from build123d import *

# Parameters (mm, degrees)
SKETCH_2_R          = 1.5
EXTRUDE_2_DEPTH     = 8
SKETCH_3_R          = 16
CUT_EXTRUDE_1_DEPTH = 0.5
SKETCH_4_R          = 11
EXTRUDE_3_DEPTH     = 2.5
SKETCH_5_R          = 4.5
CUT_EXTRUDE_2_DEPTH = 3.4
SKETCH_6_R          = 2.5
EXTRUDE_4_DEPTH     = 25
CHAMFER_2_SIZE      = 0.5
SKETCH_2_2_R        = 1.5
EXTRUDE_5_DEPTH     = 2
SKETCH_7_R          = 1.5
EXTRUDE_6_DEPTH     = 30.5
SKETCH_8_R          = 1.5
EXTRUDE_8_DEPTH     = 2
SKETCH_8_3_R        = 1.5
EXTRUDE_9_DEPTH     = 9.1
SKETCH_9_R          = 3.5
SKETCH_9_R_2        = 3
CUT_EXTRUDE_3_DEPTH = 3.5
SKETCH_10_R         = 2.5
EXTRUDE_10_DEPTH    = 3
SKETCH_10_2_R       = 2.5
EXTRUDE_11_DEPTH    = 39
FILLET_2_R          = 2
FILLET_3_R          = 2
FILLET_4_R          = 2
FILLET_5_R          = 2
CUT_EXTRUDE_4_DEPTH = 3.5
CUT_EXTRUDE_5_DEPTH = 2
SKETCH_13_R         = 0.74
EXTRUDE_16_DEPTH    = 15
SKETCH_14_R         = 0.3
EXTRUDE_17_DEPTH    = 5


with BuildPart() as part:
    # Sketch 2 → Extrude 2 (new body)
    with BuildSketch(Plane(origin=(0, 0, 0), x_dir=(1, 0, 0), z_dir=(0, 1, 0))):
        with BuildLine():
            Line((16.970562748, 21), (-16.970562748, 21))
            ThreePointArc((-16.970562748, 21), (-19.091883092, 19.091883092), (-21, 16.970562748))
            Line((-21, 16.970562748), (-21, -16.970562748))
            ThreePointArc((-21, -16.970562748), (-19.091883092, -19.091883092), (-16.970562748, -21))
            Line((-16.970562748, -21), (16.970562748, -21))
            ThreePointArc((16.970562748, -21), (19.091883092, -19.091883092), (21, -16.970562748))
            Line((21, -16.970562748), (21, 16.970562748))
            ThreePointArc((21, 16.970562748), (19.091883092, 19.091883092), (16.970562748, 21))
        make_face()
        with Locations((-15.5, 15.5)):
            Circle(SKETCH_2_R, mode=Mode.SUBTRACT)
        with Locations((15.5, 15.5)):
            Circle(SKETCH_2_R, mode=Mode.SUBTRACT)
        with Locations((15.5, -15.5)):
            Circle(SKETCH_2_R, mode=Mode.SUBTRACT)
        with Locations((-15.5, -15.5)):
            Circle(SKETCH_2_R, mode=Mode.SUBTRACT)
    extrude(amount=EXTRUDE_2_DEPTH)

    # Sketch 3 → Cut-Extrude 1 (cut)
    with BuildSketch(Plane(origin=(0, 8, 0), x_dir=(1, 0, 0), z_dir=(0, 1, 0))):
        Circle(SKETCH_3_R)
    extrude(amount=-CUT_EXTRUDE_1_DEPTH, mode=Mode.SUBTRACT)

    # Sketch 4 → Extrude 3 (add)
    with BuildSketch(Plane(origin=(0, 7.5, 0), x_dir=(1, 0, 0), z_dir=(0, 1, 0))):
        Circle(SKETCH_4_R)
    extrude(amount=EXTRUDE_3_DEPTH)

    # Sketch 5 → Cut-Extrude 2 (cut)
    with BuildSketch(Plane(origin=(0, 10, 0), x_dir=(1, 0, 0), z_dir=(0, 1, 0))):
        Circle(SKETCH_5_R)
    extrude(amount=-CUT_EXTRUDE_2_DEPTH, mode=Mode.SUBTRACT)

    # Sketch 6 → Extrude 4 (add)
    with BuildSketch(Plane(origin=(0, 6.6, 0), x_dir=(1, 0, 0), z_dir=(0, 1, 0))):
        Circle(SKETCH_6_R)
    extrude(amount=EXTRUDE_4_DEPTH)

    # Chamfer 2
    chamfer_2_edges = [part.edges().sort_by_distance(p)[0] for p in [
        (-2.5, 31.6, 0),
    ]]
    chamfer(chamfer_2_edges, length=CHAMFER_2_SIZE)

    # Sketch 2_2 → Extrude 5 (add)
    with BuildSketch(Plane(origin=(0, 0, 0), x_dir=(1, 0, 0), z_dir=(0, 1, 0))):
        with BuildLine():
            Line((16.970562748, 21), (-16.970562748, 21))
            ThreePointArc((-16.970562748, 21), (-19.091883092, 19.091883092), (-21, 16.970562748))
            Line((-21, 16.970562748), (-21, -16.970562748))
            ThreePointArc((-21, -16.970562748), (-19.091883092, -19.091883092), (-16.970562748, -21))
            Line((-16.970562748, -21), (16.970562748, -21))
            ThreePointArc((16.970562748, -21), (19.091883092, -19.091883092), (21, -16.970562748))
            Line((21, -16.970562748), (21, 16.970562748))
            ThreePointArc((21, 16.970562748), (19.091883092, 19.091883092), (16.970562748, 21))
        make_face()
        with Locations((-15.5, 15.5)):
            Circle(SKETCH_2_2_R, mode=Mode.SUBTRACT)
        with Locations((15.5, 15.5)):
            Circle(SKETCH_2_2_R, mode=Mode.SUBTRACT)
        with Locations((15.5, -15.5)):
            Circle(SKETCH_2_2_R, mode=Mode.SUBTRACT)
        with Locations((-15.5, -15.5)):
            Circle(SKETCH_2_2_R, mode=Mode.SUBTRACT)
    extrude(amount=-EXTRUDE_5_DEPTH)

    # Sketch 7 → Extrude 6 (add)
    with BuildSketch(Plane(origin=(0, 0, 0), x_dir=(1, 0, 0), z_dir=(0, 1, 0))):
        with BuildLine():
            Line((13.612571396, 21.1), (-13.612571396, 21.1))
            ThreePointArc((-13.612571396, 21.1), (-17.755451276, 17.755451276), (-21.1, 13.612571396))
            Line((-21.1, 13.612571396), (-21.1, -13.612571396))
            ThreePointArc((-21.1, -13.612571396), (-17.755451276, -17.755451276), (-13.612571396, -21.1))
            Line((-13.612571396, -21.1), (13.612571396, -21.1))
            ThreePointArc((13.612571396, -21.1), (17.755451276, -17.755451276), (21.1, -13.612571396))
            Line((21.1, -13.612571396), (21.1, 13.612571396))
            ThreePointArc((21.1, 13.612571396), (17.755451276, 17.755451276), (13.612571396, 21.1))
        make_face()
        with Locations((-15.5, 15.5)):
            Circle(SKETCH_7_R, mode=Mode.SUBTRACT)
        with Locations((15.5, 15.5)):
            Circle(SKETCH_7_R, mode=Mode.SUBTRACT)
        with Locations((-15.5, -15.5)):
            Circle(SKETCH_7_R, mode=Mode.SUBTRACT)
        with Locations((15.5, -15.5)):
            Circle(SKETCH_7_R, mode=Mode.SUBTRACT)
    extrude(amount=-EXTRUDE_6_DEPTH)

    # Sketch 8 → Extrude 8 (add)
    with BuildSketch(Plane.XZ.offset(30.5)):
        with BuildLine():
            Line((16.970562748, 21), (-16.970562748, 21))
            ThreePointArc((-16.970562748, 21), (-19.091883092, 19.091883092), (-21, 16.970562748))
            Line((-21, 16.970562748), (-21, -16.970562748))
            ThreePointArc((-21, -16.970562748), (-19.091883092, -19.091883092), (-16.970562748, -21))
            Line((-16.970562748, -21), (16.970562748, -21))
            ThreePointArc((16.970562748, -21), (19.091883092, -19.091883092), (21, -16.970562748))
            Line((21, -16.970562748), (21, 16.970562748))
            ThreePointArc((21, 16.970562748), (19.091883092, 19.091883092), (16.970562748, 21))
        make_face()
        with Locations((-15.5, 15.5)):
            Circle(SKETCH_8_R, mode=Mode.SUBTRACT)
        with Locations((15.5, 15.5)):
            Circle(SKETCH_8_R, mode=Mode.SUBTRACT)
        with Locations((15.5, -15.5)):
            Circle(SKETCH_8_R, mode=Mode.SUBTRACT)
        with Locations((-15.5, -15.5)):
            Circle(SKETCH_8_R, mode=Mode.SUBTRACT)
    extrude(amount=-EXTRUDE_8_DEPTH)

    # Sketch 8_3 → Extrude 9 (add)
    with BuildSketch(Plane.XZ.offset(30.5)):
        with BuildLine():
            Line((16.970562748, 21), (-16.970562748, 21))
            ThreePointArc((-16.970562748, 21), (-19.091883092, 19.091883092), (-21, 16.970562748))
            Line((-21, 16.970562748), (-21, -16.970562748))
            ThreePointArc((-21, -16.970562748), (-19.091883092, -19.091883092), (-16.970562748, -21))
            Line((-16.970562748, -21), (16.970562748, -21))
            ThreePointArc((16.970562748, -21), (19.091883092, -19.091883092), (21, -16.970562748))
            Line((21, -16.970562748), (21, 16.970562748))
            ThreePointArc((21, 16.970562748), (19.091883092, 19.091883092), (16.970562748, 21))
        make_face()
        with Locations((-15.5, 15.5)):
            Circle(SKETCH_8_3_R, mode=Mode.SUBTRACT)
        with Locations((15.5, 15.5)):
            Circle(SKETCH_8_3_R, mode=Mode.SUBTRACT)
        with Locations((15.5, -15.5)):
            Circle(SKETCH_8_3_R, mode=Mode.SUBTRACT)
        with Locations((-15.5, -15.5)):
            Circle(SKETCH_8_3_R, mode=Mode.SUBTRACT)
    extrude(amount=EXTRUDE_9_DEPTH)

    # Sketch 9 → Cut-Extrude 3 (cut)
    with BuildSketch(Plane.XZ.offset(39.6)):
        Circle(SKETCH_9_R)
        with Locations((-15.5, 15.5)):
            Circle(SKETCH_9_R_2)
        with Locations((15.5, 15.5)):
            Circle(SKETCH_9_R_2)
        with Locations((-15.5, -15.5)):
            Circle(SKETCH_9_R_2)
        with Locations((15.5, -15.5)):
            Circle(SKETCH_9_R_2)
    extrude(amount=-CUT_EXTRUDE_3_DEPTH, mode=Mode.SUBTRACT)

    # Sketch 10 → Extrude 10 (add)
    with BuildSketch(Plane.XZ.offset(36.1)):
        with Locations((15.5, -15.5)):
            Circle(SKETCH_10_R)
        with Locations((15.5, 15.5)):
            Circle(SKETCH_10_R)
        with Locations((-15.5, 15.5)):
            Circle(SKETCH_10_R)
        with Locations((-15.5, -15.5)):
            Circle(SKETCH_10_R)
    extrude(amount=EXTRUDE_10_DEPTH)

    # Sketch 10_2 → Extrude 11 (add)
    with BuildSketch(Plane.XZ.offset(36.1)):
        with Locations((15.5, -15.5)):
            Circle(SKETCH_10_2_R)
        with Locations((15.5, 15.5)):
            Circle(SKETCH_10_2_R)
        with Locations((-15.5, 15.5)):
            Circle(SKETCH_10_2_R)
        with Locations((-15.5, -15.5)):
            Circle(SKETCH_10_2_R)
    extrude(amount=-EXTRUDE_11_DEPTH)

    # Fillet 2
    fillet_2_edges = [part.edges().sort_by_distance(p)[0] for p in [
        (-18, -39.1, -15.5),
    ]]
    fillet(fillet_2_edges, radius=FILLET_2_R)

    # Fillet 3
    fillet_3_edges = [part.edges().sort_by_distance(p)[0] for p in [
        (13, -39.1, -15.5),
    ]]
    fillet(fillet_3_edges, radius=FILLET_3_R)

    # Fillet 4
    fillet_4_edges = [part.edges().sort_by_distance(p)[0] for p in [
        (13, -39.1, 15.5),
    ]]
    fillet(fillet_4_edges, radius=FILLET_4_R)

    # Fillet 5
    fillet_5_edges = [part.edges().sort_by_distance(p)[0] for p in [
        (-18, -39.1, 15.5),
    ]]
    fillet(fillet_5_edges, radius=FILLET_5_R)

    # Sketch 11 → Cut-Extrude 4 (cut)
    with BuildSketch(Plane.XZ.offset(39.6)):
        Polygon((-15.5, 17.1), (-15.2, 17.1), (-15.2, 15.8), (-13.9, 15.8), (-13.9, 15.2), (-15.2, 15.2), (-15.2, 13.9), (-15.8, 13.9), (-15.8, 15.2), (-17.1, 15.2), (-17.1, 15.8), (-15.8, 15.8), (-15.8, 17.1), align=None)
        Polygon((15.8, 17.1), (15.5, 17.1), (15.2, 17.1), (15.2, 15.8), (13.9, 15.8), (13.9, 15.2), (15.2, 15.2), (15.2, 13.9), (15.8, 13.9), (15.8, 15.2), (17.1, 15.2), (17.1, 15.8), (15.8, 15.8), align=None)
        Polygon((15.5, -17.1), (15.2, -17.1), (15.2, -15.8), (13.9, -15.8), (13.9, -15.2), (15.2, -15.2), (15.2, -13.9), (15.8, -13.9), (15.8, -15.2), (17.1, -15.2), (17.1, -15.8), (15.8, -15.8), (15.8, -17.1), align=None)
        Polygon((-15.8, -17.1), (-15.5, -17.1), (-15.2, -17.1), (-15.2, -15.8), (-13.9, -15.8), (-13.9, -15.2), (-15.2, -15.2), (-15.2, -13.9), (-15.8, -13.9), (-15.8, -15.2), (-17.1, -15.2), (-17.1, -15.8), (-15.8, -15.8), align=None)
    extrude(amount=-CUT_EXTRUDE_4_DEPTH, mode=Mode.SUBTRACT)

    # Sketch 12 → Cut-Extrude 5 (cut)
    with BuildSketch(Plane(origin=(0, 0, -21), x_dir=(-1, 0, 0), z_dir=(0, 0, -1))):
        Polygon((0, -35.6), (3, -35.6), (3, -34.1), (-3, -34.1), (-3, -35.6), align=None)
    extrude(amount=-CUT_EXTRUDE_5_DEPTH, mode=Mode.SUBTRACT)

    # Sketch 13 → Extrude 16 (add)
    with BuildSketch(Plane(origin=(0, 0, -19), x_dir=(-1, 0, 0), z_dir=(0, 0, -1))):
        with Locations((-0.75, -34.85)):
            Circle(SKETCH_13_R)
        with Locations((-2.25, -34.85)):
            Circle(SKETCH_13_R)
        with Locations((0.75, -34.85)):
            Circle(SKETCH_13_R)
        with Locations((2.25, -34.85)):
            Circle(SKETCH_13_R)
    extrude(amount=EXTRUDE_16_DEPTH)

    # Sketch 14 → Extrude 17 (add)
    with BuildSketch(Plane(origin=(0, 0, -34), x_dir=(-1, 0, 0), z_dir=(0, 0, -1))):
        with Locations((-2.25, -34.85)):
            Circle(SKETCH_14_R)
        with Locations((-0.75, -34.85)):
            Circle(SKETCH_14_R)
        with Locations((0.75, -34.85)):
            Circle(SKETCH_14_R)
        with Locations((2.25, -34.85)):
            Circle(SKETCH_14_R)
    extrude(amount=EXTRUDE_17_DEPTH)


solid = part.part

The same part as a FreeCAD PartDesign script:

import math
import FreeCAD as App
import Part
import Sketcher
from FreeCAD import Vector


def edges_at(feature, points):
    """Names of the edges that pass closest to the given points."""
    edges = feature.Shape.Edges
    near = lambda p: min(range(len(edges)), key=lambda i: edges[i].distToShape(Part.Vertex(*p))[0])
    return sorted({f"Edge{near(p) + 1}" for p in points})


def add_polygon(sketch, points):
    """Adds a closed chain of lines whose ends are joined by coincident constraints."""
    first, n = sketch.GeometryCount, len(points)
    for a, b in zip(points, points[1:] + points[:1]):
        sketch.addGeometry(Part.LineSegment(App.Vector(*a, 0), App.Vector(*b, 0)), False)
    for i in range(n):
        sketch.addConstraint(Sketcher.Constraint("Coincident", first + i, 2, first + (i + 1) % n, 1))

doc = App.newDocument("Part")
body = doc.addObject("PartDesign::Body", "Body")

# Sketch on XZ plane
sketch1 = body.newObject("Sketcher::SketchObject", "Sketch")
sketch1.AttachmentSupport = (doc.getObject("XZ_Plane"), [""])
sketch1.MapMode = "FlatFace"
sketch1.addGeometry([
    Part.LineSegment(Vector(17, -21, 0), Vector(-17, -21, 0)),  # 0
    Part.ArcOfCircle(Part.Circle(Vector(0, 0, 0), Vector(0, 0, 1), 27), math.radians(-141.06), math.radians(-128.94)),  # 1
    Part.LineSegment(Vector(-21, -17, 0), Vector(-21, 17, 0)),  # 2
    Part.ArcOfCircle(Part.Circle(Vector(0, 0, 0), Vector(0, 0, 1), 27), math.radians(128.94), math.radians(141.06)),  # 3
    Part.LineSegment(Vector(-17, 21, 0), Vector(17, 21, 0)),  # 4
    Part.ArcOfCircle(Part.Circle(Vector(0, 0, 0), Vector(0, 0, 1), 27), math.radians(38.94), math.radians(51.06)),  # 5
    Part.LineSegment(Vector(21, 17, 0), Vector(21, -17, 0)),  # 6
    Part.ArcOfCircle(Part.Circle(Vector(0, 0, 0), Vector(0, 0, 1), 27), math.radians(-51.06), math.radians(-38.94)),  # 7
    Part.Circle(Vector(-15.5, 15.5, 0), Vector(0, 0, 1), 1.5),  # 8
    Part.Circle(Vector(15.5, 15.5, 0), Vector(0, 0, 1), 1.5),  # 9
    Part.Circle(Vector(-15.5, -15.5, 0), Vector(0, 0, 1), 1.5),  # 10
    Part.Circle(Vector(15.5, -15.5, 0), Vector(0, 0, 1), 1.5),  # 11
], False)
sketch1.addConstraint([
    Sketcher.Constraint("Coincident", 0, 2, 1, 2),
    Sketcher.Constraint("Coincident", 1, 1, 2, 1),
    Sketcher.Constraint("Coincident", 2, 2, 3, 2),
    Sketcher.Constraint("Coincident", 3, 1, 4, 1),
    Sketcher.Constraint("Coincident", 4, 2, 5, 2),
    Sketcher.Constraint("Coincident", 5, 1, 6, 1),
    Sketcher.Constraint("Coincident", 6, 2, 7, 2),
    Sketcher.Constraint("Coincident", 7, 1, 0, 1),
    Sketcher.Constraint("Horizontal", 0),
    Sketcher.Constraint("Vertical", 2),
    Sketcher.Constraint("Horizontal", 4),
    Sketcher.Constraint("Vertical", 6),
    Sketcher.Constraint("Coincident", 1, 3, -1, 1),
    Sketcher.Constraint("Coincident", 3, 3, -1, 1),
    Sketcher.Constraint("Coincident", 5, 3, -1, 1),
    Sketcher.Constraint("Coincident", 7, 3, -1, 1),
    Sketcher.Constraint("Equal", 1, 3),
    Sketcher.Constraint("Equal", 3, 5),
    Sketcher.Constraint("Equal", 5, 7),
    Sketcher.Constraint("Equal", 8, 9),
    Sketcher.Constraint("Equal", 9, 10),
    Sketcher.Constraint("Equal", 10, 11),
    Sketcher.Constraint("Symmetric", 9, 3, 10, 3, -1, 1),
    Sketcher.Constraint("Symmetric", 8, 3, 11, 3, -1, 1),
    Sketcher.Constraint("Symmetric", 8, 3, 9, 3, -2),
    Sketcher.Constraint("Horizontal", 2, 2, 5, 1),
    Sketcher.Constraint("Vertical", 0, 2, 3, 1),
    Sketcher.Constraint("Equal", 4, 2),
    Sketcher.Constraint("Diameter", 8, 3.0),
    Sketcher.Constraint("Radius", 1, 27.0),
    Sketcher.Constraint("DistanceY", 0, 2, -1, 1, 21.0),
    Sketcher.Constraint("DistanceX", 8, 3, 9, 3, 31.0),
    Sketcher.Constraint("DistanceY", 10, 3, 8, 3, 31.0),
])
pad1 = body.newObject("PartDesign::Pad", "Pad")
pad1.Profile = sketch1
pad1.Length = 8
pad1.Reversed = True

# Sketch on XZ plane
sketch2 = body.newObject("Sketcher::SketchObject", "Sketch001")
sketch2.AttachmentSupport = (doc.getObject("XZ_Plane"), [""])
sketch2.MapMode = "FlatFace"
sketch2.AttachmentOffset = App.Placement(Vector(0, 0, -8), App.Rotation())
sketch2.addGeometry(Part.Circle(Vector(0, 0, 0), Vector(0, 0, 1), 16), False)
sketch2.addConstraint([
    Sketcher.Constraint("Coincident", 0, 3, -1, 1),
    Sketcher.Constraint("Diameter", 0, 32.0),
])
pocket1 = body.newObject("PartDesign::Pocket", "Pocket")
pocket1.Profile = sketch2
pocket1.Length = 0.5
pocket1.Reversed = True

# Sketch on XZ plane
sketch3 = body.newObject("Sketcher::SketchObject", "Sketch002")
sketch3.AttachmentSupport = (doc.getObject("XZ_Plane"), [""])
sketch3.MapMode = "FlatFace"
sketch3.AttachmentOffset = App.Placement(Vector(0, 0, -7.5), App.Rotation())
sketch3.addGeometry(Part.Circle(Vector(0, 0, 0), Vector(0, 0, 1), 11), False)
sketch3.addConstraint([
    Sketcher.Constraint("Coincident", 0, 3, -1, 1),
    Sketcher.Constraint("Diameter", 0, 22.0),
])
pad2 = body.newObject("PartDesign::Pad", "Pad001")
pad2.Profile = sketch3
pad2.Length = 2.5
pad2.Reversed = True

# Sketch on XZ plane
sketch4 = body.newObject("Sketcher::SketchObject", "Sketch003")
sketch4.AttachmentSupport = (doc.getObject("XZ_Plane"), [""])
sketch4.MapMode = "FlatFace"
sketch4.AttachmentOffset = App.Placement(Vector(0, 0, -10), App.Rotation())
sketch4.addGeometry(Part.Circle(Vector(0, 0, 0), Vector(0, 0, 1), 4.5), False)
sketch4.addConstraint([
    Sketcher.Constraint("Coincident", 0, 3, -1, 1),
    Sketcher.Constraint("Diameter", 0, 9.0),
])
pocket2 = body.newObject("PartDesign::Pocket", "Pocket001")
pocket2.Profile = sketch4
pocket2.Length = 3.4
pocket2.Reversed = True

# Sketch on XZ plane
sketch5 = body.newObject("Sketcher::SketchObject", "Sketch004")
sketch5.AttachmentSupport = (doc.getObject("XZ_Plane"), [""])
sketch5.MapMode = "FlatFace"
sketch5.AttachmentOffset = App.Placement(Vector(0, 0, -6.6), App.Rotation())
sketch5.addGeometry(Part.Circle(Vector(0, 0, 0), Vector(0, 0, 1), 2.5), False)
sketch5.addConstraint([
    Sketcher.Constraint("Coincident", 0, 3, -1, 1),
    Sketcher.Constraint("Diameter", 0, 5.0),
])
pad3 = body.newObject("PartDesign::Pad", "Pad002")
pad3.Profile = sketch5
pad3.Length = 25
pad3.Reversed = True
doc.recompute()

chamfer = body.newObject("PartDesign::Chamfer", "Chamfer")
chamfer.Base = (pad3, edges_at(pad3, [(-2.5, 31.6, 0)]))
chamfer.Size = 0.5

# Sketch on XZ plane
sketch6 = body.newObject("Sketcher::SketchObject", "Sketch005")
sketch6.AttachmentSupport = (doc.getObject("XZ_Plane"), [""])
sketch6.MapMode = "FlatFace"
sketch6.addGeometry([
    Part.LineSegment(Vector(17, -21, 0), Vector(-17, -21, 0)),  # 0
    Part.ArcOfCircle(Part.Circle(Vector(0, 0, 0), Vector(0, 0, 1), 27), math.radians(-141.06), math.radians(-128.94)),  # 1
    Part.LineSegment(Vector(-21, -17, 0), Vector(-21, 17, 0)),  # 2
    Part.ArcOfCircle(Part.Circle(Vector(0, 0, 0), Vector(0, 0, 1), 27), math.radians(128.94), math.radians(141.06)),  # 3
    Part.LineSegment(Vector(-17, 21, 0), Vector(17, 21, 0)),  # 4
    Part.ArcOfCircle(Part.Circle(Vector(0, 0, 0), Vector(0, 0, 1), 27), math.radians(38.94), math.radians(51.06)),  # 5
    Part.LineSegment(Vector(21, 17, 0), Vector(21, -17, 0)),  # 6
    Part.ArcOfCircle(Part.Circle(Vector(0, 0, 0), Vector(0, 0, 1), 27), math.radians(-51.06), math.radians(-38.94)),  # 7
    Part.Circle(Vector(-15.5, 15.5, 0), Vector(0, 0, 1), 1.5),  # 8
    Part.Circle(Vector(15.5, 15.5, 0), Vector(0, 0, 1), 1.5),  # 9
    Part.Circle(Vector(-15.5, -15.5, 0), Vector(0, 0, 1), 1.5),  # 10
    Part.Circle(Vector(15.5, -15.5, 0), Vector(0, 0, 1), 1.5),  # 11
], False)
sketch6.addConstraint([
    Sketcher.Constraint("Coincident", 0, 2, 1, 2),
    Sketcher.Constraint("Coincident", 1, 1, 2, 1),
    Sketcher.Constraint("Coincident", 2, 2, 3, 2),
    Sketcher.Constraint("Coincident", 3, 1, 4, 1),
    Sketcher.Constraint("Coincident", 4, 2, 5, 2),
    Sketcher.Constraint("Coincident", 5, 1, 6, 1),
    Sketcher.Constraint("Coincident", 6, 2, 7, 2),
    Sketcher.Constraint("Coincident", 7, 1, 0, 1),
    Sketcher.Constraint("Horizontal", 0),
    Sketcher.Constraint("Vertical", 2),
    Sketcher.Constraint("Horizontal", 4),
    Sketcher.Constraint("Vertical", 6),
    Sketcher.Constraint("Coincident", 1, 3, -1, 1),
    Sketcher.Constraint("Coincident", 3, 3, -1, 1),
    Sketcher.Constraint("Coincident", 5, 3, -1, 1),
    Sketcher.Constraint("Coincident", 7, 3, -1, 1),
    Sketcher.Constraint("Equal", 1, 3),
    Sketcher.Constraint("Equal", 3, 5),
    Sketcher.Constraint("Equal", 5, 7),
    Sketcher.Constraint("Equal", 8, 9),
    Sketcher.Constraint("Equal", 9, 10),
    Sketcher.Constraint("Equal", 10, 11),
    Sketcher.Constraint("Symmetric", 9, 3, 10, 3, -1, 1),
    Sketcher.Constraint("Symmetric", 8, 3, 11, 3, -1, 1),
    Sketcher.Constraint("Symmetric", 8, 3, 9, 3, -2),
    Sketcher.Constraint("Horizontal", 2, 2, 5, 1),
    Sketcher.Constraint("Vertical", 0, 2, 3, 1),
    Sketcher.Constraint("Equal", 4, 2),
    Sketcher.Constraint("Diameter", 8, 3.0),
    Sketcher.Constraint("Radius", 1, 27.0),
    Sketcher.Constraint("DistanceY", 0, 2, -1, 1, 21.0),
    Sketcher.Constraint("DistanceX", 8, 3, 9, 3, 31.0),
    Sketcher.Constraint("DistanceY", 10, 3, 8, 3, 31.0),
])
pad4 = body.newObject("PartDesign::Pad", "Pad003")
pad4.Profile = sketch6
pad4.Length = 2

# Sketch on XZ plane
sketch7 = body.newObject("Sketcher::SketchObject", "Sketch006")
sketch7.AttachmentSupport = (doc.getObject("XZ_Plane"), [""])
sketch7.MapMode = "FlatFace"
sketch7.addGeometry([
    Part.LineSegment(Vector(13.6, -21.1, 0), Vector(-13.6, -21.1, 0)),  # 0
    Part.ArcOfCircle(Part.Circle(Vector(0, 0, 0), Vector(0, 0, 1), 25.1), math.radians(-147), math.radians(-123)),  # 1
    Part.LineSegment(Vector(-21.1, -13.6, 0), Vector(-21.1, 13.6, 0)),  # 2
    Part.ArcOfCircle(Part.Circle(Vector(0, 0, 0), Vector(0, 0, 1), 25.1), math.radians(123), math.radians(147)),  # 3
    Part.LineSegment(Vector(-13.6, 21.1, 0), Vector(13.6, 21.1, 0)),  # 4
    Part.ArcOfCircle(Part.Circle(Vector(0, 0, 0), Vector(0, 0, 1), 25.1), math.radians(33), math.radians(57)),  # 5
    Part.LineSegment(Vector(21.1, 13.6, 0), Vector(21.1, -13.6, 0)),  # 6
    Part.ArcOfCircle(Part.Circle(Vector(0, 0, 0), Vector(0, 0, 1), 25.1), math.radians(-57), math.radians(-33)),  # 7
    Part.Circle(Vector(-15.5, 15.5, 0), Vector(0, 0, 1), 1.5),  # 8
    Part.Circle(Vector(15.5, 15.5, 0), Vector(0, 0, 1), 1.5),  # 9
    Part.Circle(Vector(-15.5, -15.5, 0), Vector(0, 0, 1), 1.5),  # 10
    Part.Circle(Vector(15.5, -15.5, 0), Vector(0, 0, 1), 1.5),  # 11
], False)
sketch7.addConstraint([
    Sketcher.Constraint("Coincident", 0, 2, 1, 2),
    Sketcher.Constraint("Coincident", 1, 1, 2, 1),
    Sketcher.Constraint("Coincident", 2, 2, 3, 2),
    Sketcher.Constraint("Coincident", 3, 1, 4, 1),
    Sketcher.Constraint("Coincident", 4, 2, 5, 2),
    Sketcher.Constraint("Coincident", 5, 1, 6, 1),
    Sketcher.Constraint("Coincident", 6, 2, 7, 2),
    Sketcher.Constraint("Coincident", 7, 1, 0, 1),
    Sketcher.Constraint("Horizontal", 0),
    Sketcher.Constraint("Vertical", 2),
    Sketcher.Constraint("Horizontal", 4),
    Sketcher.Constraint("Vertical", 6),
    Sketcher.Constraint("Coincident", 1, 3, -1, 1),
    Sketcher.Constraint("Coincident", 3, 3, -1, 1),
    Sketcher.Constraint("Coincident", 5, 3, -1, 1),
    Sketcher.Constraint("Coincident", 7, 3, -1, 1),
    Sketcher.Constraint("Equal", 1, 3),
    Sketcher.Constraint("Equal", 3, 5),
    Sketcher.Constraint("Equal", 5, 7),
    Sketcher.Constraint("Equal", 8, 9),
    Sketcher.Constraint("Equal", 9, 10),
    Sketcher.Constraint("Equal", 10, 11),
    Sketcher.Constraint("Symmetric", 9, 3, 10, 3, -1, 1),
    Sketcher.Constraint("Symmetric", 8, 3, 11, 3, -1, 1),
    Sketcher.Constraint("Symmetric", 8, 3, 9, 3, -2),
    Sketcher.Constraint("Horizontal", 2, 2, 5, 1),
    Sketcher.Constraint("Vertical", 0, 2, 3, 1),
    Sketcher.Constraint("Equal", 4, 2),
    Sketcher.Constraint("Diameter", 8, 3.0),
    Sketcher.Constraint("Radius", 1, 25.11),
    Sketcher.Constraint("DistanceX", 8, 3, 9, 3, 31.0),
    Sketcher.Constraint("DistanceY", 10, 3, 8, 3, 31.0),
    Sketcher.Constraint("DistanceY", 0, 2, -1, 1, 21.1),
])
pad5 = body.newObject("PartDesign::Pad", "Pad004")
pad5.Profile = sketch7
pad5.Length = 30.5

# Sketch on XZ plane
sketch8 = body.newObject("Sketcher::SketchObject", "Sketch007")
sketch8.AttachmentSupport = (doc.getObject("XZ_Plane"), [""])
sketch8.MapMode = "FlatFace"
sketch8.AttachmentOffset = App.Placement(Vector(0, 0, 30.5), App.Rotation())
sketch8.addGeometry([
    Part.LineSegment(Vector(17, 21, 0), Vector(-17, 21, 0)),  # 0
    Part.ArcOfCircle(Part.Circle(Vector(0, 0, 0), Vector(0, 0, 1), 27), math.radians(128.94), math.radians(141.06)),  # 1
    Part.LineSegment(Vector(-21, 17, 0), Vector(-21, -17, 0)),  # 2
    Part.ArcOfCircle(Part.Circle(Vector(0, 0, 0), Vector(0, 0, 1), 27), math.radians(-141.06), math.radians(-128.94)),  # 3
    Part.LineSegment(Vector(-17, -21, 0), Vector(17, -21, 0)),  # 4
    Part.ArcOfCircle(Part.Circle(Vector(0, 0, 0), Vector(0, 0, 1), 27), math.radians(-51.06), math.radians(-38.94)),  # 5
    Part.LineSegment(Vector(21, -17, 0), Vector(21, 17, 0)),  # 6
    Part.ArcOfCircle(Part.Circle(Vector(0, 0, 0), Vector(0, 0, 1), 27), math.radians(38.94), math.radians(51.06)),  # 7
    Part.Circle(Vector(-15.5, -15.5, 0), Vector(0, 0, 1), 1.5),  # 8
    Part.Circle(Vector(15.5, -15.5, 0), Vector(0, 0, 1), 1.5),  # 9
    Part.Circle(Vector(-15.5, 15.5, 0), Vector(0, 0, 1), 1.5),  # 10
    Part.Circle(Vector(15.5, 15.5, 0), Vector(0, 0, 1), 1.5),  # 11
], False)
sketch8.addConstraint([
    Sketcher.Constraint("Coincident", 0, 2, 1, 1),
    Sketcher.Constraint("Coincident", 1, 2, 2, 1),
    Sketcher.Constraint("Coincident", 2, 2, 3, 1),
    Sketcher.Constraint("Coincident", 3, 2, 4, 1),
    Sketcher.Constraint("Coincident", 4, 2, 5, 1),
    Sketcher.Constraint("Coincident", 5, 2, 6, 1),
    Sketcher.Constraint("Coincident", 6, 2, 7, 1),
    Sketcher.Constraint("Coincident", 7, 2, 0, 1),
    Sketcher.Constraint("Horizontal", 0),
    Sketcher.Constraint("Vertical", 2),
    Sketcher.Constraint("Horizontal", 4),
    Sketcher.Constraint("Vertical", 6),
    Sketcher.Constraint("Coincident", 1, 3, -1, 1),
    Sketcher.Constraint("Coincident", 3, 3, -1, 1),
    Sketcher.Constraint("Coincident", 5, 3, -1, 1),
    Sketcher.Constraint("Coincident", 7, 3, -1, 1),
    Sketcher.Constraint("Equal", 1, 3),
    Sketcher.Constraint("Equal", 3, 5),
    Sketcher.Constraint("Equal", 5, 7),
    Sketcher.Constraint("Equal", 8, 9),
    Sketcher.Constraint("Equal", 9, 10),
    Sketcher.Constraint("Equal", 10, 11),
    Sketcher.Constraint("Symmetric", 9, 3, 10, 3, -1, 1),
    Sketcher.Constraint("Symmetric", 8, 3, 11, 3, -1, 1),
    Sketcher.Constraint("Symmetric", 8, 3, 9, 3, -2),
    Sketcher.Constraint("Horizontal", 2, 2, 5, 2),
    Sketcher.Constraint("Vertical", 0, 2, 3, 2),
    Sketcher.Constraint("Equal", 4, 2),
    Sketcher.Constraint("Diameter", 8, 3.0),
    Sketcher.Constraint("Radius", 1, 27.0),
    Sketcher.Constraint("DistanceY", -1, 1, 0, 2, 21.0),
    Sketcher.Constraint("DistanceX", 8, 3, 9, 3, 31.0),
    Sketcher.Constraint("DistanceY", 8, 3, 10, 3, 31.0),
])
pad6 = body.newObject("PartDesign::Pad", "Pad005")
pad6.Profile = sketch8
pad6.Length = 2
pad6.Reversed = True

# Sketch on XZ plane
sketch9 = body.newObject("Sketcher::SketchObject", "Sketch008")
sketch9.AttachmentSupport = (doc.getObject("XZ_Plane"), [""])
sketch9.MapMode = "FlatFace"
sketch9.AttachmentOffset = App.Placement(Vector(0, 0, 30.5), App.Rotation())
sketch9.addGeometry([
    Part.LineSegment(Vector(17, 21, 0), Vector(-17, 21, 0)),  # 0
    Part.ArcOfCircle(Part.Circle(Vector(0, 0, 0), Vector(0, 0, 1), 27), math.radians(128.94), math.radians(141.06)),  # 1
    Part.LineSegment(Vector(-21, 17, 0), Vector(-21, -17, 0)),  # 2
    Part.ArcOfCircle(Part.Circle(Vector(0, 0, 0), Vector(0, 0, 1), 27), math.radians(-141.06), math.radians(-128.94)),  # 3
    Part.LineSegment(Vector(-17, -21, 0), Vector(17, -21, 0)),  # 4
    Part.ArcOfCircle(Part.Circle(Vector(0, 0, 0), Vector(0, 0, 1), 27), math.radians(-51.06), math.radians(-38.94)),  # 5
    Part.LineSegment(Vector(21, -17, 0), Vector(21, 17, 0)),  # 6
    Part.ArcOfCircle(Part.Circle(Vector(0, 0, 0), Vector(0, 0, 1), 27), math.radians(38.94), math.radians(51.06)),  # 7
    Part.Circle(Vector(-15.5, -15.5, 0), Vector(0, 0, 1), 1.5),  # 8
    Part.Circle(Vector(15.5, -15.5, 0), Vector(0, 0, 1), 1.5),  # 9
    Part.Circle(Vector(-15.5, 15.5, 0), Vector(0, 0, 1), 1.5),  # 10
    Part.Circle(Vector(15.5, 15.5, 0), Vector(0, 0, 1), 1.5),  # 11
], False)
sketch9.addConstraint([
    Sketcher.Constraint("Coincident", 0, 2, 1, 1),
    Sketcher.Constraint("Coincident", 1, 2, 2, 1),
    Sketcher.Constraint("Coincident", 2, 2, 3, 1),
    Sketcher.Constraint("Coincident", 3, 2, 4, 1),
    Sketcher.Constraint("Coincident", 4, 2, 5, 1),
    Sketcher.Constraint("Coincident", 5, 2, 6, 1),
    Sketcher.Constraint("Coincident", 6, 2, 7, 1),
    Sketcher.Constraint("Coincident", 7, 2, 0, 1),
    Sketcher.Constraint("Horizontal", 0),
    Sketcher.Constraint("Vertical", 2),
    Sketcher.Constraint("Horizontal", 4),
    Sketcher.Constraint("Vertical", 6),
    Sketcher.Constraint("Coincident", 1, 3, -1, 1),
    Sketcher.Constraint("Coincident", 3, 3, -1, 1),
    Sketcher.Constraint("Coincident", 5, 3, -1, 1),
    Sketcher.Constraint("Coincident", 7, 3, -1, 1),
    Sketcher.Constraint("Equal", 1, 3),
    Sketcher.Constraint("Equal", 3, 5),
    Sketcher.Constraint("Equal", 5, 7),
    Sketcher.Constraint("Equal", 8, 9),
    Sketcher.Constraint("Equal", 9, 10),
    Sketcher.Constraint("Equal", 10, 11),
    Sketcher.Constraint("Symmetric", 9, 3, 10, 3, -1, 1),
    Sketcher.Constraint("Symmetric", 8, 3, 11, 3, -1, 1),
    Sketcher.Constraint("Symmetric", 8, 3, 9, 3, -2),
    Sketcher.Constraint("Horizontal", 2, 2, 5, 2),
    Sketcher.Constraint("Vertical", 0, 2, 3, 2),
    Sketcher.Constraint("Equal", 4, 2),
    Sketcher.Constraint("Diameter", 8, 3.0),
    Sketcher.Constraint("Radius", 1, 27.0),
    Sketcher.Constraint("DistanceY", -1, 1, 0, 2, 21.0),
    Sketcher.Constraint("DistanceX", 8, 3, 9, 3, 31.0),
    Sketcher.Constraint("DistanceY", 8, 3, 10, 3, 31.0),
])
pad7 = body.newObject("PartDesign::Pad", "Pad006")
pad7.Profile = sketch9
pad7.Length = 9.1

# Sketch on XZ plane
sketch10 = body.newObject("Sketcher::SketchObject", "Sketch009")
sketch10.AttachmentSupport = (doc.getObject("XZ_Plane"), [""])
sketch10.MapMode = "FlatFace"
sketch10.AttachmentOffset = App.Placement(Vector(0, 0, 39.6), App.Rotation())
sketch10.addGeometry([
    Part.Circle(Vector(0, 0, 0), Vector(0, 0, 1), 3.5),  # 0
    Part.Circle(Vector(-15.5, 15.5, 0), Vector(0, 0, 1), 3),  # 1
    Part.Circle(Vector(15.5, 15.5, 0), Vector(0, 0, 1), 3),  # 2
    Part.Circle(Vector(-15.5, -15.5, 0), Vector(0, 0, 1), 3),  # 3
    Part.Circle(Vector(15.5, -15.5, 0), Vector(0, 0, 1), 3),  # 4
], False)
sketch10.addConstraint([
    Sketcher.Constraint("Coincident", 0, 3, -1, 1),
    Sketcher.Constraint("Equal", 1, 2),
    Sketcher.Constraint("Equal", 2, 3),
    Sketcher.Constraint("Equal", 3, 4),
    Sketcher.Constraint("Symmetric", 2, 3, 3, 3, -1, 1),
    Sketcher.Constraint("Symmetric", 1, 3, 4, 3, -1, 1),
    Sketcher.Constraint("Symmetric", 1, 3, 2, 3, -2),
    Sketcher.Constraint("Diameter", 0, 7.0),
    Sketcher.Constraint("Diameter", 1, 6.0),
    Sketcher.Constraint("DistanceX", 1, 3, 2, 3, 31.0),
    Sketcher.Constraint("DistanceY", 3, 3, 1, 3, 31.0),
])
pocket3 = body.newObject("PartDesign::Pocket", "Pocket002")
pocket3.Profile = sketch10
pocket3.Length = 3.5

# Sketch on XZ plane
sketch11 = body.newObject("Sketcher::SketchObject", "Sketch010")
sketch11.AttachmentSupport = (doc.getObject("XZ_Plane"), [""])
sketch11.MapMode = "FlatFace"
sketch11.AttachmentOffset = App.Placement(Vector(0, 0, 36.1), App.Rotation())
sketch11.addGeometry([
    Part.Circle(Vector(15.5, -15.5, 0), Vector(0, 0, 1), 2.5),
    Part.Circle(Vector(15.5, 15.5, 0), Vector(0, 0, 1), 2.5),
    Part.Circle(Vector(-15.5, 15.5, 0), Vector(0, 0, 1), 2.5),
    Part.Circle(Vector(-15.5, -15.5, 0), Vector(0, 0, 1), 2.5),
], False)
sketch11.addConstraint([
    Sketcher.Constraint("Equal", 0, 1),
    Sketcher.Constraint("Equal", 1, 2),
    Sketcher.Constraint("Equal", 2, 3),
    Sketcher.Constraint("Symmetric", 0, 3, 2, 3, -1, 1),
    Sketcher.Constraint("Symmetric", 1, 3, 3, 3, -1, 1),
    Sketcher.Constraint("Symmetric", 1, 3, 2, 3, -2),
    Sketcher.Constraint("Diameter", 0, 5.0),
    Sketcher.Constraint("DistanceY", 0, 3, 1, 3, 31.0),
    Sketcher.Constraint("DistanceX", 2, 3, 1, 3, 31.0),
])
pad8 = body.newObject("PartDesign::Pad", "Pad007")
pad8.Profile = sketch11
pad8.Length = 3

# Sketch on XZ plane
sketch12 = body.newObject("Sketcher::SketchObject", "Sketch011")
sketch12.AttachmentSupport = (doc.getObject("XZ_Plane"), [""])
sketch12.MapMode = "FlatFace"
sketch12.AttachmentOffset = App.Placement(Vector(0, 0, 36.1), App.Rotation())
sketch12.addGeometry([
    Part.Circle(Vector(15.5, -15.5, 0), Vector(0, 0, 1), 2.5),
    Part.Circle(Vector(15.5, 15.5, 0), Vector(0, 0, 1), 2.5),
    Part.Circle(Vector(-15.5, 15.5, 0), Vector(0, 0, 1), 2.5),
    Part.Circle(Vector(-15.5, -15.5, 0), Vector(0, 0, 1), 2.5),
], False)
sketch12.addConstraint([
    Sketcher.Constraint("Equal", 0, 1),
    Sketcher.Constraint("Equal", 1, 2),
    Sketcher.Constraint("Equal", 2, 3),
    Sketcher.Constraint("Symmetric", 0, 3, 2, 3, -1, 1),
    Sketcher.Constraint("Symmetric", 1, 3, 3, 3, -1, 1),
    Sketcher.Constraint("Symmetric", 1, 3, 2, 3, -2),
    Sketcher.Constraint("Diameter", 0, 5.0),
    Sketcher.Constraint("DistanceY", 0, 3, 1, 3, 31.0),
    Sketcher.Constraint("DistanceX", 2, 3, 1, 3, 31.0),
])
pad9 = body.newObject("PartDesign::Pad", "Pad008")
pad9.Profile = sketch12
pad9.Length = 39
pad9.Reversed = True
doc.recompute()

fillet = body.newObject("PartDesign::Fillet", "Fillet")
fillet.Base = (pad9, edges_at(pad9, [(-18, -39.1, -15.5)]))
fillet.Radius = 2
doc.recompute()

fillet2 = body.newObject("PartDesign::Fillet", "Fillet001")
fillet2.Base = (fillet, edges_at(fillet, [(13, -39.1, -15.5)]))
fillet2.Radius = 2
doc.recompute()

fillet3 = body.newObject("PartDesign::Fillet", "Fillet002")
fillet3.Base = (fillet2, edges_at(fillet2, [(13, -39.1, 15.5)]))
fillet3.Radius = 2
doc.recompute()

fillet4 = body.newObject("PartDesign::Fillet", "Fillet003")
fillet4.Base = (fillet3, edges_at(fillet3, [(-18, -39.1, 15.5)]))
fillet4.Radius = 2

# Sketch on XZ plane
sketch13 = body.newObject("Sketcher::SketchObject", "Sketch012")
sketch13.AttachmentSupport = (doc.getObject("XZ_Plane"), [""])
sketch13.MapMode = "FlatFace"
sketch13.AttachmentOffset = App.Placement(Vector(0, 0, 39.6), App.Rotation())
add_polygon(sketch13, [(-15.2, 17.1), (-15.8, 17.1), (-15.8, 15.8), (-17.1, 15.8), (-17.1, 15.2), (-15.8, 15.2), (-15.8, 13.9), (-15.2, 13.9), (-15.2, 15.2), (-13.9, 15.2), (-13.9, 15.8), (-15.2, 15.8)])  # lines 0-11
add_polygon(sketch13, [(15.8, 17.1), (15.2, 17.1), (15.2, 15.8), (13.9, 15.8), (13.9, 15.2), (15.2, 15.2), (15.2, 13.9), (15.8, 13.9), (15.8, 15.2), (17.1, 15.2), (17.1, 15.8), (15.8, 15.8)])  # lines 12-23
add_polygon(sketch13, [(15.2, -17.1), (15.8, -17.1), (15.8, -15.8), (17.1, -15.8), (17.1, -15.2), (15.8, -15.2), (15.8, -13.9), (15.2, -13.9), (15.2, -15.2), (13.9, -15.2), (13.9, -15.8), (15.2, -15.8)])  # lines 24-35
add_polygon(sketch13, [(-15.8, -17.1), (-15.2, -17.1), (-15.2, -15.8), (-13.9, -15.8), (-13.9, -15.2), (-15.2, -15.2), (-15.2, -13.9), (-15.8, -13.9), (-15.8, -15.2), (-17.1, -15.2), (-17.1, -15.8), (-15.8, -15.8)])  # lines 36-47
sketch13.addConstraint([
    Sketcher.Constraint("Horizontal", 0),
    Sketcher.Constraint("Vertical", 1),
    Sketcher.Constraint("Horizontal", 2),
    Sketcher.Constraint("Vertical", 3),
    Sketcher.Constraint("Horizontal", 4),
    Sketcher.Constraint("Vertical", 5),
    Sketcher.Constraint("Horizontal", 6),
    Sketcher.Constraint("Vertical", 7),
    Sketcher.Constraint("Horizontal", 8),
    Sketcher.Constraint("Vertical", 9),
    Sketcher.Constraint("Horizontal", 10),
    Sketcher.Constraint("Vertical", 11),
    Sketcher.Constraint("Horizontal", 12),
    Sketcher.Constraint("Vertical", 13),
    Sketcher.Constraint("Horizontal", 14),
    Sketcher.Constraint("Vertical", 15),
    Sketcher.Constraint("Horizontal", 16),
    Sketcher.Constraint("Vertical", 17),
    Sketcher.Constraint("Horizontal", 18),
    Sketcher.Constraint("Vertical", 19),
    Sketcher.Constraint("Horizontal", 20),
    Sketcher.Constraint("Vertical", 21),
    Sketcher.Constraint("Horizontal", 22),
    Sketcher.Constraint("Vertical", 23),
    Sketcher.Constraint("Horizontal", 24),
    Sketcher.Constraint("Vertical", 25),
    Sketcher.Constraint("Horizontal", 26),
    Sketcher.Constraint("Vertical", 27),
    Sketcher.Constraint("Horizontal", 28),
    Sketcher.Constraint("Vertical", 29),
    Sketcher.Constraint("Horizontal", 30),
    Sketcher.Constraint("Vertical", 31),
    Sketcher.Constraint("Horizontal", 32),
    Sketcher.Constraint("Vertical", 33),
    Sketcher.Constraint("Horizontal", 34),
    Sketcher.Constraint("Vertical", 35),
    Sketcher.Constraint("Horizontal", 36),
    Sketcher.Constraint("Vertical", 37),
    Sketcher.Constraint("Horizontal", 38),
    Sketcher.Constraint("Vertical", 39),
    Sketcher.Constraint("Horizontal", 40),
    Sketcher.Constraint("Vertical", 41),
    Sketcher.Constraint("Horizontal", 42),
    Sketcher.Constraint("Vertical", 43),
    Sketcher.Constraint("Horizontal", 44),
    Sketcher.Constraint("Vertical", 45),
    Sketcher.Constraint("Horizontal", 46),
    Sketcher.Constraint("Vertical", 47),
    Sketcher.Constraint("Symmetric", 0, 2, 24, 2, -1, 1),
    Sketcher.Constraint("Symmetric", 2, 2, 26, 2, -1, 1),
    Sketcher.Constraint("Symmetric", 4, 2, 28, 2, -1, 1),
    Sketcher.Constraint("Symmetric", 6, 2, 30, 2, -1, 1),
    Sketcher.Constraint("Symmetric", 8, 2, 32, 2, -1, 1),
    Sketcher.Constraint("Symmetric", 10, 2, 34, 2, -1, 1),
    Sketcher.Constraint("Symmetric", 12, 2, 36, 2, -1, 1),
    Sketcher.Constraint("Symmetric", 14, 2, 38, 2, -1, 1),
    Sketcher.Constraint("Symmetric", 16, 2, 40, 2, -1, 1),
    Sketcher.Constraint("Symmetric", 18, 2, 42, 2, -1, 1),
    Sketcher.Constraint("Symmetric", 20, 2, 44, 2, -1, 1),
    Sketcher.Constraint("Symmetric", 22, 2, 46, 2, -1, 1),
    Sketcher.Constraint("Symmetric", 11, 2, 12, 2, -2),
    Sketcher.Constraint("Symmetric", 9, 2, 14, 2, -2),
    Sketcher.Constraint("Symmetric", 7, 2, 16, 2, -2),
    Sketcher.Constraint("Symmetric", 5, 2, 18, 2, -2),
    Sketcher.Constraint("Symmetric", 3, 2, 20, 2, -2),
    Sketcher.Constraint("Symmetric", 1, 2, 22, 2, -2),
    Sketcher.Constraint("Horizontal", 4, 2, 7, 2),
    Sketcher.Constraint("Horizontal", 2, 2, 9, 2),
    Sketcher.Constraint("Vertical", 1, 2, 4, 2),
    Sketcher.Constraint("Vertical", 7, 2, 10, 2),
    Sketcher.Constraint("Equal", 4, 8),
    Sketcher.Constraint("Equal", 46, 1),
    Sketcher.Constraint("Equal", 42, 3),
    Sketcher.Constraint("Equal", 1, 5),
    Sketcher.Constraint("DistanceX", 0, 2, 0, 1, 0.6),
    Sketcher.Constraint("DistanceX", 2, 2, 2, 1, 1.3),
    Sketcher.Constraint("DistanceY", 24, 2, 18, 2, 31.0),
    Sketcher.Constraint("DistanceX", 0, 2, -1, 1, 15.8),
])
pocket4 = body.newObject("PartDesign::Pocket", "Pocket003")
pocket4.Profile = sketch13
pocket4.Length = 3.5

# Sketch on XY plane
sketch14 = body.newObject("Sketcher::SketchObject", "Sketch013")
sketch14.AttachmentSupport = (doc.getObject("XY_Plane"), [""])
sketch14.MapMode = "FlatFace"
sketch14.AttachmentOffset = App.Placement(Vector(0, 0, -21), App.Rotation())
add_polygon(sketch14, [(-3, -35.6), (-3, -34.1), (3, -34.1), (3, -35.6)])  # lines 0-3
sketch14.addConstraint([
    Sketcher.Constraint("Vertical", 0),
    Sketcher.Constraint("Horizontal", 1),
    Sketcher.Constraint("Vertical", 2),
    Sketcher.Constraint("Horizontal", 3),
    Sketcher.Constraint("DistanceX", 1, 1, 1, 2, 6.0),
    Sketcher.Constraint("DistanceY", 0, 1, 0, 2, 1.5),
    Sketcher.Constraint("DistanceX", 0, 2, -1, 1, 3.0),
    Sketcher.Constraint("DistanceY", 0, 2, -1, 1, 34.1),
])
pocket5 = body.newObject("PartDesign::Pocket", "Pocket004")
pocket5.Profile = sketch14
pocket5.Length = 2
pocket5.Reversed = True

# Sketch on XY plane
sketch15 = body.newObject("Sketcher::SketchObject", "Sketch014")
sketch15.AttachmentSupport = (doc.getObject("XY_Plane"), [""])
sketch15.MapMode = "FlatFace"
sketch15.AttachmentOffset = App.Placement(Vector(0, 0, -19), App.Rotation())
sketch15.addGeometry([
    Part.Circle(Vector(0.8, -34.9, 0), Vector(0, 0, 1), 0.7),
    Part.Circle(Vector(2.2, -34.9, 0), Vector(0, 0, 1), 0.7),
    Part.Circle(Vector(-0.8, -34.9, 0), Vector(0, 0, 1), 0.7),
    Part.Circle(Vector(-2.2, -34.9, 0), Vector(0, 0, 1), 0.7),
], False)
sketch15.addConstraint([
    Sketcher.Constraint("Equal", 0, 1),
    Sketcher.Constraint("Equal", 1, 2),
    Sketcher.Constraint("Equal", 2, 3),
    Sketcher.Constraint("Symmetric", 0, 3, 2, 3, -2),
    Sketcher.Constraint("Symmetric", 1, 3, 3, 3, -2),
    Sketcher.Constraint("Horizontal", 0, 3, 1, 3),
    Sketcher.Constraint("Diameter", 0, 1.48),
    Sketcher.Constraint("DistanceX", 2, 3, 1, 3, 3.0),
    Sketcher.Constraint("DistanceX", 0, 3, 1, 3, 1.5),
    Sketcher.Constraint("DistanceY", 0, 3, -1, 1, 34.85),
])
pad10 = body.newObject("PartDesign::Pad", "Pad009")
pad10.Profile = sketch15
pad10.Length = 15
pad10.Reversed = True

# Sketch on XY plane
sketch16 = body.newObject("Sketcher::SketchObject", "Sketch015")
sketch16.AttachmentSupport = (doc.getObject("XY_Plane"), [""])
sketch16.MapMode = "FlatFace"
sketch16.AttachmentOffset = App.Placement(Vector(0, 0, -34), App.Rotation())
sketch16.addGeometry([
    Part.Circle(Vector(2.25, -34.85, 0), Vector(0, 0, 1), 0.3),
    Part.Circle(Vector(0.75, -34.85, 0), Vector(0, 0, 1), 0.3),
    Part.Circle(Vector(-0.75, -34.85, 0), Vector(0, 0, 1), 0.3),
    Part.Circle(Vector(-2.25, -34.85, 0), Vector(0, 0, 1), 0.3),
], False)
sketch16.addConstraint([
    Sketcher.Constraint("Equal", 0, 1),
    Sketcher.Constraint("Equal", 1, 2),
    Sketcher.Constraint("Equal", 2, 3),
    Sketcher.Constraint("Symmetric", 1, 3, 2, 3, -2),
    Sketcher.Constraint("Symmetric", 0, 3, 3, 3, -2),
    Sketcher.Constraint("Horizontal", 0, 3, 1, 3),
    Sketcher.Constraint("Diameter", 0, 0.6),
    Sketcher.Constraint("DistanceX", 2, 3, 0, 3, 3.0),
    Sketcher.Constraint("DistanceX", 1, 3, 0, 3, 1.5),
    Sketcher.Constraint("DistanceY", 0, 3, -1, 1, 34.85),
])
pad11 = body.newObject("PartDesign::Pad", "Pad010")
pad11.Profile = sketch16
pad11.Length = 5
pad11.Reversed = True

doc.recompute()
